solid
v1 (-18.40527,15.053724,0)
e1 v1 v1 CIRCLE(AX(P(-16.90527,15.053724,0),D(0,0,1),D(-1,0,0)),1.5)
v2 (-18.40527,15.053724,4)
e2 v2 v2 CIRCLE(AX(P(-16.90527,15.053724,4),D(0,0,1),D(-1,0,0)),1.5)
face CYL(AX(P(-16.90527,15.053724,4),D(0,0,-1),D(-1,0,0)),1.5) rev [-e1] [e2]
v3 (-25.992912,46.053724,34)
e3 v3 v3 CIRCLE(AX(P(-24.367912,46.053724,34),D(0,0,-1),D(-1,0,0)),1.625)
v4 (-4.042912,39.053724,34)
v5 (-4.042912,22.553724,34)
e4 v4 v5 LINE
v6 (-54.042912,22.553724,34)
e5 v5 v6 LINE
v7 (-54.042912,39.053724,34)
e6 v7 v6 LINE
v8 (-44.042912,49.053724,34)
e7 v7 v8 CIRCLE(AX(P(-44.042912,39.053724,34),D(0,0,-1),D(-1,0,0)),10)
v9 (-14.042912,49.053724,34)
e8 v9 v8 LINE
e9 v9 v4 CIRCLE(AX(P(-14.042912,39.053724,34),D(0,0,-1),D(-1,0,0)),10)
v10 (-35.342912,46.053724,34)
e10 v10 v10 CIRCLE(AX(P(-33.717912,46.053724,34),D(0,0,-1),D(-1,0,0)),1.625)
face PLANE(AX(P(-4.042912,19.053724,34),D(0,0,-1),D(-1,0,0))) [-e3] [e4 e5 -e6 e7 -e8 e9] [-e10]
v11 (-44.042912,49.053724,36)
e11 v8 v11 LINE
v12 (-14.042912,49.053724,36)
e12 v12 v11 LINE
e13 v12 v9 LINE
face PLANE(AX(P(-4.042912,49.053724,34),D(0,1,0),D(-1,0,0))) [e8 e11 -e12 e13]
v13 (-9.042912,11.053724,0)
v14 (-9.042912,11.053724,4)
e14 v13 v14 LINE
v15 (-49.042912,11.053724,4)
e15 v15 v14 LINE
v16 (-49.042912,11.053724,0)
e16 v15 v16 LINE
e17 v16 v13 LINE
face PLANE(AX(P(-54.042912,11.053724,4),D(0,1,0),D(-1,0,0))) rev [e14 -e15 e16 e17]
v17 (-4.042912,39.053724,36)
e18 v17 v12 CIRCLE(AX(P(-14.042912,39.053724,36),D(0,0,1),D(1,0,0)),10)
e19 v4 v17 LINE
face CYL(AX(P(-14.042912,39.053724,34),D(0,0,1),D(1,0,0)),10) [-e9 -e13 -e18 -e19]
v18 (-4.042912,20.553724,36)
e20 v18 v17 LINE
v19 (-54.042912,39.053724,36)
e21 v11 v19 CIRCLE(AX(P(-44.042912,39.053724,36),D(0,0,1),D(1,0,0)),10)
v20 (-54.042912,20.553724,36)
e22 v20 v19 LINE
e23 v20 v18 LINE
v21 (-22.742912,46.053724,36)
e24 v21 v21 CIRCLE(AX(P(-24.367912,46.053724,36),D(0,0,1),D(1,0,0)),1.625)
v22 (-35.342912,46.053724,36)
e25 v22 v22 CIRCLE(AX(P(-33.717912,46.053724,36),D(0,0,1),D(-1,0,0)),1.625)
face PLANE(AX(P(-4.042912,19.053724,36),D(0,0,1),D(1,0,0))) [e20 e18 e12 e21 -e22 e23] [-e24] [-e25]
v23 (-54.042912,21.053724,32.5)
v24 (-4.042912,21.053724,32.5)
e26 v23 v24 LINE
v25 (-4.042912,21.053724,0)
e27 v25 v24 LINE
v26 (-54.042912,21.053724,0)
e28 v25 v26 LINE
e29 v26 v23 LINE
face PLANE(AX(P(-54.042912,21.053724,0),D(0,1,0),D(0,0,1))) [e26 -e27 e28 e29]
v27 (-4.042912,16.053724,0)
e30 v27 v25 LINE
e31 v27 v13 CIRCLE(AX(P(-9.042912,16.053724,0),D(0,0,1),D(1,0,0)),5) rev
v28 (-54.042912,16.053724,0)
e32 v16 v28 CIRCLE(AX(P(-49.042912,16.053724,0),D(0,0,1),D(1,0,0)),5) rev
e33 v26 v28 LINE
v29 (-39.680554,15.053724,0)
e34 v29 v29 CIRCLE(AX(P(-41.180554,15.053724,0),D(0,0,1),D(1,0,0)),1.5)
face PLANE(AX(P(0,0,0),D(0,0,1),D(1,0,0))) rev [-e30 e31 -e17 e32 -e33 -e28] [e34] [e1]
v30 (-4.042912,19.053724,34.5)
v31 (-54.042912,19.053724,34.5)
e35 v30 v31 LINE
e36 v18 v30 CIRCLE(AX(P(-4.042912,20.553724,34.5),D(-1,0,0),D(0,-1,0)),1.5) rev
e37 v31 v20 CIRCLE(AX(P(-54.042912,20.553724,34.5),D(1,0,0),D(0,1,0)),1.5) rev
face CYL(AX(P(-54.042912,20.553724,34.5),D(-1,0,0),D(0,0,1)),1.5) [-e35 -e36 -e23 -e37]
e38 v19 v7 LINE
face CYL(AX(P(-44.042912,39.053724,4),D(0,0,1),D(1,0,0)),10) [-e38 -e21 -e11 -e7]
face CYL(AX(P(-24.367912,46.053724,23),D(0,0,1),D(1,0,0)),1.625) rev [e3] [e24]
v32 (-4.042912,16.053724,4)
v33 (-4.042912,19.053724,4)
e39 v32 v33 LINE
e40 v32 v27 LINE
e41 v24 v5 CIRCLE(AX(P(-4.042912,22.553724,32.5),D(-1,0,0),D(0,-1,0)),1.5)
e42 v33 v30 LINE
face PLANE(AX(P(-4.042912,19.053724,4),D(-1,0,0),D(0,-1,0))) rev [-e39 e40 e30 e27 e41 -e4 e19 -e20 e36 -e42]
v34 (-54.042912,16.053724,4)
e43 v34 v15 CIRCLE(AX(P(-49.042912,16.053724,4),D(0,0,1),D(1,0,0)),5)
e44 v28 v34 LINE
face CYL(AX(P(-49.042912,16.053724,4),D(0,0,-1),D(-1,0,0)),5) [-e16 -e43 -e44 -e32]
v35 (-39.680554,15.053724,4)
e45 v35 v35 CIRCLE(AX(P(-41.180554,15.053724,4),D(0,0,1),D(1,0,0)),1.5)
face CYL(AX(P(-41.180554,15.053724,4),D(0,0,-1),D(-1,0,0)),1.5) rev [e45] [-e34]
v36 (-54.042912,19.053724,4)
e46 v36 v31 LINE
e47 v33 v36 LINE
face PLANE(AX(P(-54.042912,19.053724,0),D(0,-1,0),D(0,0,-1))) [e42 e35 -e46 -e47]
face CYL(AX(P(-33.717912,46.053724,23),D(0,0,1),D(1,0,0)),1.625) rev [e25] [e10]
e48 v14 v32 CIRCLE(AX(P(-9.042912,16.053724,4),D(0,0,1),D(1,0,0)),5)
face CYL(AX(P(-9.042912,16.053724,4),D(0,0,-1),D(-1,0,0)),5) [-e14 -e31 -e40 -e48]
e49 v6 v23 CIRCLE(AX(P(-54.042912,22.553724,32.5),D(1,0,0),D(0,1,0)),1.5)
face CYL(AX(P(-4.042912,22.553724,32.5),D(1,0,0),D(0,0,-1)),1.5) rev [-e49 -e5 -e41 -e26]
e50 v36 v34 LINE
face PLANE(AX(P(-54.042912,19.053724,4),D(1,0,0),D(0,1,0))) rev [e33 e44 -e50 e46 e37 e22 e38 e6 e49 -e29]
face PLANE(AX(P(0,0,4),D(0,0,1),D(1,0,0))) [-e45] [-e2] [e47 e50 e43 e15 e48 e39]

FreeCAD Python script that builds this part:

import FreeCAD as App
import Part
import Sketcher
from FreeCAD import Vector
Q = App.Units.Quantity


def edges_at(feature, points):
    """Names of the edges that pass closest to the given points."""
    edges = feature.Shape.Edges
    near = lambda p: min(range(len(edges)), key=lambda i: edges[i].distToShape(Part.Vertex(*p))[0])
    return sorted({f"Edge{near(p) + 1}" for p in points})


def add_polygon(sketch, points):
    """Adds a closed chain of lines whose ends are joined by coincident constraints."""
    first, n = sketch.GeometryCount, len(points)
    for a, b in zip(points, points[1:] + points[:1]):
        sketch.addGeometry(Part.LineSegment(App.Vector(*a, 0), App.Vector(*b, 0)), False)
    for i in range(n):
        sketch.addConstraint(Sketcher.Constraint("Coincident", first + i, 2, first + (i + 1) % n, 1))

doc = App.newDocument("Part")
body = doc.addObject("PartDesign::Body", "Body")

sketch1 = body.newObject("Sketcher::SketchObject", "Sketch")
sketch1.AttachmentSupport = (doc.getObject("XY_Plane"), [""])
sketch1.MapMode = "FlatFace"
add_polygon(sketch1, [(-54, 19.1), (-54, 11.1), (-4, 11.1), (-4, 19.1)])
sketch1.addGeometry(Part.Circle(Vector(-41.2, 15.1, 0), Vector(0, 0, 1), 1.5), False)
sketch1.addGeometry(Part.Circle(Vector(-16.9, 15.1, 0), Vector(0, 0, 1), 1.5), False)
sketch1.addConstraint(Sketcher.Constraint("Vertical", 0))
sketch1.addConstraint(Sketcher.Constraint("Horizontal", 1))
sketch1.addConstraint(Sketcher.Constraint("Vertical", 2))
sketch1.addConstraint(Sketcher.Constraint("Horizontal", 3))
sketch1.addConstraint(Sketcher.Constraint("Equal", 4, 5))
sketch1.addConstraint(Sketcher.Constraint("Horizontal", 4, 3, 5, 3))
sketch1.addConstraint(Sketcher.Constraint("Diameter", 4, Q("3 mm")))
sketch1.addConstraint(Sketcher.Constraint("DistanceX", 1, 1, 1, 2, Q("50 mm")))
sketch1.addConstraint(Sketcher.Constraint("DistanceY", 0, 2, 0, 1, Q("8 mm")))
sketch1.addConstraint(Sketcher.Constraint("DistanceY", 0, 2, 4, 3, Q("4 mm")))
sketch1.addConstraint(Sketcher.Constraint("DistanceX", 5, 3, -1, 1, Q("16.90527 mm")))
sketch1.addConstraint(Sketcher.Constraint("DistanceX", 0, 2, -1, 1, Q("54.042912 mm")))
sketch1.addConstraint(Sketcher.Constraint("DistanceX", 4, 3, -1, 1, Q("41.180554 mm")))
sketch1.addConstraint(Sketcher.Constraint("DistanceY", -1, 1, 4, 3, Q("15.053724 mm")))
pad1 = body.newObject("PartDesign::Pad", "Pad")
pad1.Profile = sketch1
pad1.Length = 4

sketch2 = body.newObject("Sketcher::SketchObject", "Sketch001")
sketch2.AttachmentSupport = (doc.getObject("XY_Plane"), [""])
sketch2.MapMode = "FlatFace"
sketch2.AttachmentOffset = App.Placement(Vector(0, 0, 4), App.Rotation())
add_polygon(sketch2, [(-54, 21.1), (-54, 19.1), (-4, 19.1), (-4, 21.1)])
sketch2.addConstraint(Sketcher.Constraint("Vertical", 0))
sketch2.addConstraint(Sketcher.Constraint("Horizontal", 1))
sketch2.addConstraint(Sketcher.Constraint("Vertical", 2))
sketch2.addConstraint(Sketcher.Constraint("Horizontal", 3))
sketch2.addConstraint(Sketcher.Constraint("DistanceX", 1, 1, 1, 2, Q("50 mm")))
sketch2.addConstraint(Sketcher.Constraint("DistanceY", 0, 2, 0, 1, Q("2 mm")))
sketch2.addConstraint(Sketcher.Constraint("DistanceX", 0, 2, -1, 1, Q("54.042912 mm")))
sketch2.addConstraint(Sketcher.Constraint("DistanceY", -1, 1, 0, 2, Q("19.053724 mm")))
pad2 = body.newObject("PartDesign::Pad", "Pad001")
pad2.Profile = sketch2
pad2.Type = "TwoLengths"
pad2.Length = 30
pad2.Length2 = 4

sketch3 = body.newObject("Sketcher::SketchObject", "Sketch002")
sketch3.AttachmentSupport = (doc.getObject("YZ_Plane"), [""])
sketch3.MapMode = "FlatFace"
sketch3.AttachmentOffset = App.Placement(Vector(0, 0, -54.042912), App.Rotation())
add_polygon(sketch3, [(49.1, 34), (19.1, 34), (19.1, 36), (49.1, 36)])
sketch3.addConstraint(Sketcher.Constraint("Horizontal", 0))
sketch3.addConstraint(Sketcher.Constraint("Vertical", 1))
sketch3.addConstraint(Sketcher.Constraint("Horizontal", 2))
sketch3.addConstraint(Sketcher.Constraint("Vertical", 3))
sketch3.addConstraint(Sketcher.Constraint("DistanceX", 0, 2, 0, 1, Q("30 mm")))
sketch3.addConstraint(Sketcher.Constraint("DistanceY", 1, 1, 1, 2, Q("2 mm")))
sketch3.addConstraint(Sketcher.Constraint("DistanceY", -1, 1, 0, 2, Q("34 mm")))
sketch3.addConstraint(Sketcher.Constraint("DistanceX", -1, 1, 0, 2, Q("19.053724 mm")))
pad3 = body.newObject("PartDesign::Pad", "Pad002")
pad3.Profile = sketch3
pad3.Length = 50
doc.recompute()

fillet = body.newObject("PartDesign::Fillet", "Fillet")
fillet.Base = (pad3, edges_at(pad3, [(-4.043, 49.054, 35), (-54.043, 49.054, 35)]))
fillet.Radius = 10
doc.recompute()

fillet2 = body.newObject("PartDesign::Fillet", "Fillet001")
fillet2.Base = (fillet, edges_at(fillet, [(-54.043, 11.054, 2), (-4.043, 11.054, 2)]))
fillet2.Radius = 5
doc.recompute()

fillet3 = body.newObject("PartDesign::Fillet", "Fillet002")
fillet3.Base = (fillet2, edges_at(fillet2, [(-29.043, 21.054, 34), (-29.043, 19.054, 36)]))
fillet3.Radius = 1.5

sketch4 = body.newObject("Sketcher::SketchObject", "Sketch003")
sketch4.AttachmentSupport = (doc.getObject("XY_Plane"), [""])
sketch4.MapMode = "FlatFace"
sketch4.AttachmentOffset = App.Placement(Vector(0, 0, 36), App.Rotation())
sketch4.addGeometry(Part.Circle(Vector(-24.4, 46.1, 0), Vector(0, 0, 1), 1.6), False)
sketch4.addGeometry(Part.Circle(Vector(-33.7, 46.1, 0), Vector(0, 0, 1), 1.6), False)
sketch4.addConstraint(Sketcher.Constraint("Equal", 0, 1))
sketch4.addConstraint(Sketcher.Constraint("Horizontal", 0, 3, 1, 3))
sketch4.addConstraint(Sketcher.Constraint("Diameter", 0, Q("3.25 mm")))
sketch4.addConstraint(Sketcher.Constraint("DistanceX", 1, 3, 0, 3, Q("9.35 mm")))
sketch4.addConstraint(Sketcher.Constraint("DistanceX", 0, 3, -1, 1, Q("24.367912 mm")))
sketch4.addConstraint(Sketcher.Constraint("DistanceY", -1, 1, 0, 3, Q("46.053724 mm")))
pocket1 = body.newObject("PartDesign::Pocket", "Pocket")
pocket1.Profile = sketch4
pocket1.Length = 13

doc.recompute()
